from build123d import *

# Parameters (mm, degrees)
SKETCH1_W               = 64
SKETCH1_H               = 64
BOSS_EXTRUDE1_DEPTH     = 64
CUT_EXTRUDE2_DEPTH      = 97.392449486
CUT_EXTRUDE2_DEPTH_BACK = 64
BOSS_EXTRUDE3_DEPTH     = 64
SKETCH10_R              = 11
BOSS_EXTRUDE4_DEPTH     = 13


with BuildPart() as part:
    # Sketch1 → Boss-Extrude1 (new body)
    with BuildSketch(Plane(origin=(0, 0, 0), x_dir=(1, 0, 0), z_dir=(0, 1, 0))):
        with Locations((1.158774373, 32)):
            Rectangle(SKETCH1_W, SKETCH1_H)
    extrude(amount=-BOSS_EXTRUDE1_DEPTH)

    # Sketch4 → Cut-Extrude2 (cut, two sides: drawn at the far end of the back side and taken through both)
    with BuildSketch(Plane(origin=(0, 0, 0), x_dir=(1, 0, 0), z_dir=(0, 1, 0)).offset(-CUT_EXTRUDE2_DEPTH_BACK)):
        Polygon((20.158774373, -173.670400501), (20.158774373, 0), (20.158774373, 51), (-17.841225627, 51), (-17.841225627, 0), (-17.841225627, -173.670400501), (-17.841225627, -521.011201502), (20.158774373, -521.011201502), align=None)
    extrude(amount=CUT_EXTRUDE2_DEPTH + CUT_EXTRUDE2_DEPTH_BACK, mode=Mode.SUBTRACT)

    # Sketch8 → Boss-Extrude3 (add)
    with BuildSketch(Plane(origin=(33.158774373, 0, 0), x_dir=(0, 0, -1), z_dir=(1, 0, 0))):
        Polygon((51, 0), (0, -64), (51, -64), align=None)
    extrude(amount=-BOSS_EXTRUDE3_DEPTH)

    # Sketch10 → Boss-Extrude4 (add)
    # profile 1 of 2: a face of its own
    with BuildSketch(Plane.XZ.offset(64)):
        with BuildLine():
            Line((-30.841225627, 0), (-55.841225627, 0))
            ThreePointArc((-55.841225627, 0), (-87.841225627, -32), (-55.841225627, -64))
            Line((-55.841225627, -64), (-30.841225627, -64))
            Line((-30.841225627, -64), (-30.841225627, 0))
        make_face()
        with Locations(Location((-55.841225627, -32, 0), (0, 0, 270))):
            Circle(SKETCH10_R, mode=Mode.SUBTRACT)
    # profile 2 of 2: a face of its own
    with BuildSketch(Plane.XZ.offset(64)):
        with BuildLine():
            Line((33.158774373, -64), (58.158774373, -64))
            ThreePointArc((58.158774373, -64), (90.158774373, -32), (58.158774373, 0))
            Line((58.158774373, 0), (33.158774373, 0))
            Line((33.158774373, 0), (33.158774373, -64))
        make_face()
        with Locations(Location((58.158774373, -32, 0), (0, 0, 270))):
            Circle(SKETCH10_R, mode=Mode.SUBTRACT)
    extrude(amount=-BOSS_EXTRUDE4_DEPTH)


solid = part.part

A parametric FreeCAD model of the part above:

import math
import FreeCAD as App
import Part
import Sketcher

V = App.Vector
Q = App.Units.Quantity

doc = App.newDocument("Part")
params = doc.addObject("Spreadsheet::Sheet", "Params")
for row, (alias, value) in enumerate([
    ("sketch1_width", "64 mm"),
    ("pad1_length", "64 mm"),
    ("sketch2_width", "38 mm"),
    ("sketch3_width", "64 mm"),
    ("sketch3_height", "51 mm"),
    ("pad2_length", "64 mm"),
    ("sketch4_diameter", "22 mm"),
    ("sketch4_radius", "32 mm"),
    ("sketch4_width", "25 mm"),
    ("pad3_length", "13 mm"),
], start=1):
    params.set(f"A{row}", alias)
    params.set(f"B{row}", "=" + value)
    params.setAlias(f"B{row}", alias)

body = doc.addObject("PartDesign::Body", "Body")

# Sketch on XZ plane
sketch1 = body.newObject("Sketcher::SketchObject", "Sketch")
sketch1.AttachmentSupport = (doc.getObject("XZ_Plane"), [""])
sketch1.MapMode = "FlatFace"
sketch1.addGeometry([
    Part.LineSegment(V(-31, -64, 0), V(-31, 0, 0)),
    Part.LineSegment(V(-31, 0, 0), V(33, 0, 0)),
    Part.LineSegment(V(33, 0, 0), V(33, -64, 0)),
    Part.LineSegment(V(33, -64, 0), V(-31, -64, 0)),
], False)
sketch1.addConstraint([
    Sketcher.Constraint("Coincident", 0, 2, 1, 1),
    Sketcher.Constraint("Coincident", 1, 2, 2, 1),
    Sketcher.Constraint("Coincident", 2, 2, 3, 1),
    Sketcher.Constraint("Coincident", 3, 2, 0, 1),
    Sketcher.Constraint("Vertical", 0),
    Sketcher.Constraint("Horizontal", 1),
    Sketcher.Constraint("Vertical", 2),
    Sketcher.Constraint("Horizontal", 3),
    Sketcher.Constraint("PointOnObject", 0, 2, -1),
    Sketcher.Constraint("Equal", 3, 0),
    Sketcher.Constraint("DistanceX", 1, 1, 1, 2, Q("64 mm")),
    Sketcher.Constraint("DistanceX", 0, 2, -1, 1, Q("30.841226 mm")),
])
sketch1.setExpression("Constraints[10]", "Params.sketch1_width")
pad1 = body.newObject("PartDesign::Pad", "Pad")
pad1.Profile = sketch1
pad1.setExpression("Length", "Params.pad1_length")

# Sketch on XZ plane
sketch2 = body.newObject("Sketcher::SketchObject", "Sketch001")
sketch2.AttachmentSupport = (doc.getObject("XZ_Plane"), [""])
sketch2.MapMode = "FlatFace"
sketch2.addGeometry([
    Part.LineSegment(V(20, -51, 0), V(-18, -51, 0)),
    Part.LineSegment(V(-18, -51, 0), V(-18, 521, 0)),
    Part.LineSegment(V(-18, 521, 0), V(20, 521, 0)),
    Part.LineSegment(V(20, 521, 0), V(20, -51, 0)),
], False)
sketch2.addConstraint([
    Sketcher.Constraint("Coincident", 0, 2, 1, 1),
    Sketcher.Constraint("Coincident", 1, 2, 2, 1),
    Sketcher.Constraint("Coincident", 2, 2, 3, 1),
    Sketcher.Constraint("Coincident", 3, 2, 0, 1),
    Sketcher.Constraint("Horizontal", 0),
    Sketcher.Constraint("Vertical", 1),
    Sketcher.Constraint("Horizontal", 2),
    Sketcher.Constraint("Vertical", 3),
    Sketcher.Constraint("DistanceX", 0, 2, 0, 1, Q("38 mm")),
    Sketcher.Constraint("DistanceY", 0, 2, -1, 1, Q("51 mm")),
    Sketcher.Constraint("DistanceY", 1, 1, 1, 2, Q("572.011202 mm")),
    Sketcher.Constraint("DistanceX", 0, 2, -1, 1, Q("17.841226 mm")),
])
sketch2.setExpression("Constraints[8]", "Params.sketch2_width")
pocket1 = body.newObject("PartDesign::Pocket", "Pocket")
pocket1.Profile = sketch2
pocket1.Type = "ThroughAll"
pocket1.Midplane = True

# Sketch on YZ plane
sketch3 = body.newObject("Sketcher::SketchObject", "Sketch002")
sketch3.AttachmentSupport = (doc.getObject("YZ_Plane"), [""])
sketch3.MapMode = "FlatFace"
sketch3.AttachmentOffset = App.Placement(V(0, 0, 33.158774), App.Rotation())
sketch3.addGeometry([
    Part.LineSegment(V(0, -51, 0), V(-64, 0, 0)),
    Part.LineSegment(V(-64, 0, 0), V(-64, -51, 0)),
    Part.LineSegment(V(-64, -51, 0), V(0, -51, 0)),
], False)
sketch3.addConstraint([
    Sketcher.Constraint("Coincident", 0, 2, 1, 1),
    Sketcher.Constraint("Coincident", 1, 2, 2, 1),
    Sketcher.Constraint("Coincident", 2, 2, 0, 1),
    Sketcher.Constraint("Vertical", 1),
    Sketcher.Constraint("Horizontal", 2),
    Sketcher.Constraint("PointOnObject", 0, 2, -1),
    Sketcher.Constraint("PointOnObject", 2, 2, -2),
    Sketcher.Constraint("DistanceX", 2, 1, 2, 2, Q("64 mm")),
    Sketcher.Constraint("DistanceY", 1, 2, 1, 1, Q("51 mm")),
])
sketch3.setExpression("Constraints[7]", "Params.sketch3_width")
sketch3.setExpression("Constraints[8]", "Params.sketch3_height")
pad2 = body.newObject("PartDesign::Pad", "Pad001")
pad2.Profile = sketch3
pad2.setExpression("Length", "Params.pad2_length")
pad2.Reversed = True

# Sketch on XZ plane
sketch4 = body.newObject("Sketcher::SketchObject", "Sketch003")
sketch4.AttachmentSupport = (doc.getObject("XZ_Plane"), [""])
sketch4.MapMode = "FlatFace"
sketch4.AttachmentOffset = App.Placement(V(0, 0, 64), App.Rotation())
sketch4.addGeometry([
    Part.LineSegment(V(-31, 0, 0), V(-56, 0, 0)),  # 0
    Part.ArcOfCircle(Part.Circle(V(-56, -32, 0), V(0, 0, 1), 32), math.radians(90), math.radians(270)),  # 1
    Part.LineSegment(V(-56, -64, 0), V(-31, -64, 0)),  # 2
    Part.LineSegment(V(-31, -64, 0), V(-31, 0, 0)),  # 3
    Part.Circle(V(-56, -32, 0), V(0, 0, 1), 11),  # 4
    Part.LineSegment(V(33, -64, 0), V(58, -64, 0)),  # 5
    Part.ArcOfCircle(Part.Circle(V(58, -32, 0), V(0, 0, 1), 32), math.radians(-90), math.radians(90)),  # 6
    Part.LineSegment(V(58, 0, 0), V(33, 0, 0)),  # 7
    Part.LineSegment(V(33, 0, 0), V(33, -64, 0)),  # 8
    Part.Circle(V(58, -32, 0), V(0, 0, 1), 11),  # 9
], False)
sketch4.addConstraint([
    Sketcher.Constraint("Tangent", 0, 2, 1, 1),
    Sketcher.Constraint("Tangent", 1, 2, 2, 1),
    Sketcher.Constraint("Coincident", 2, 2, 3, 1),
    Sketcher.Constraint("Coincident", 3, 2, 0, 1),
    Sketcher.Constraint("Tangent", 5, 2, 6, 1),
    Sketcher.Constraint("Tangent", 6, 2, 7, 1),
    Sketcher.Constraint("Coincident", 7, 2, 8, 1),
    Sketcher.Constraint("Coincident", 8, 2, 5, 1),
    Sketcher.Constraint("Horizontal", 0),
    Sketcher.Constraint("Horizontal", 2),
    Sketcher.Constraint("Vertical", 3),
    Sketcher.Constraint("Horizontal", 5),
    Sketcher.Constraint("Horizontal", 7),
    Sketcher.Constraint("Vertical", 8),
    Sketcher.Constraint("Coincident", 4, 3, 1, 3),
    Sketcher.Constraint("Coincident", 9, 3, 6, 3),
    Sketcher.Constraint("Equal", 1, 6),
    Sketcher.Constraint("Equal", 4, 9),
    Sketcher.Constraint("PointOnObject", 0, 2, -1),
    Sketcher.Constraint("PointOnObject", 6, 2, -1),
    Sketcher.Constraint("Equal", 2, 5),
    Sketcher.Constraint("Diameter", 4, Q("22 mm")),
    Sketcher.Constraint("Radius", 1, Q("32 mm")),
    Sketcher.Constraint("DistanceX", 0, 2, 0, 1, Q("25 mm")),
    Sketcher.Constraint("DistanceX", 1, 3, 6, 3, Q("114 mm")),
    Sketcher.Constraint("DistanceX", 1, 3, -1, 1, Q("55.841226 mm")),
])
sketch4.setExpression("Constraints[21]", "Params.sketch4_diameter")
sketch4.setExpression("Constraints[22]", "Params.sketch4_radius")
sketch4.setExpression("Constraints[23]", "Params.sketch4_width")
pad3 = body.newObject("PartDesign::Pad", "Pad002")
pad3.Profile = sketch4
pad3.setExpression("Length", "Params.pad3_length")
pad3.Reversed = True

doc.recompute()
